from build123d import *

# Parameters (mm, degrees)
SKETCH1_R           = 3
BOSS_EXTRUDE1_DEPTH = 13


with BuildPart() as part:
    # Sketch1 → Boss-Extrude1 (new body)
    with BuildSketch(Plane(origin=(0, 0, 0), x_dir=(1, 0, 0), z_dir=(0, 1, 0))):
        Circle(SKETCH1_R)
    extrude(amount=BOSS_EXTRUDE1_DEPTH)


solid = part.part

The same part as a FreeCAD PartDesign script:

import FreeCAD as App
import Part
import Sketcher

doc = App.newDocument("Part")
body = doc.addObject("PartDesign::Body", "Body")

# Sketch on XZ plane
sketch1 = doc.addObject("Sketcher::SketchObject", "Sketch")
body.addObject(sketch1)
sketch1.AttachmentSupport = (doc.XZ_Plane, [""])
sketch1.MapMode = "FlatFace"
sketch1.addGeometry(Part.Circle(App.Vector(0, 0, 0), App.Vector(0, 0, 1), 3), False)
sketch1.addConstraint(Sketcher.Constraint("Coincident", 0, 3, -1, 1))
sketch1.addConstraint(Sketcher.Constraint("Diameter", 0, 6.0))
pad1 = doc.addObject("PartDesign::Pad", "Pad")
body.addObject(pad1)
pad1.Profile = sketch1
pad1.Length = 13
pad1.Reversed = True

doc.recompute()
